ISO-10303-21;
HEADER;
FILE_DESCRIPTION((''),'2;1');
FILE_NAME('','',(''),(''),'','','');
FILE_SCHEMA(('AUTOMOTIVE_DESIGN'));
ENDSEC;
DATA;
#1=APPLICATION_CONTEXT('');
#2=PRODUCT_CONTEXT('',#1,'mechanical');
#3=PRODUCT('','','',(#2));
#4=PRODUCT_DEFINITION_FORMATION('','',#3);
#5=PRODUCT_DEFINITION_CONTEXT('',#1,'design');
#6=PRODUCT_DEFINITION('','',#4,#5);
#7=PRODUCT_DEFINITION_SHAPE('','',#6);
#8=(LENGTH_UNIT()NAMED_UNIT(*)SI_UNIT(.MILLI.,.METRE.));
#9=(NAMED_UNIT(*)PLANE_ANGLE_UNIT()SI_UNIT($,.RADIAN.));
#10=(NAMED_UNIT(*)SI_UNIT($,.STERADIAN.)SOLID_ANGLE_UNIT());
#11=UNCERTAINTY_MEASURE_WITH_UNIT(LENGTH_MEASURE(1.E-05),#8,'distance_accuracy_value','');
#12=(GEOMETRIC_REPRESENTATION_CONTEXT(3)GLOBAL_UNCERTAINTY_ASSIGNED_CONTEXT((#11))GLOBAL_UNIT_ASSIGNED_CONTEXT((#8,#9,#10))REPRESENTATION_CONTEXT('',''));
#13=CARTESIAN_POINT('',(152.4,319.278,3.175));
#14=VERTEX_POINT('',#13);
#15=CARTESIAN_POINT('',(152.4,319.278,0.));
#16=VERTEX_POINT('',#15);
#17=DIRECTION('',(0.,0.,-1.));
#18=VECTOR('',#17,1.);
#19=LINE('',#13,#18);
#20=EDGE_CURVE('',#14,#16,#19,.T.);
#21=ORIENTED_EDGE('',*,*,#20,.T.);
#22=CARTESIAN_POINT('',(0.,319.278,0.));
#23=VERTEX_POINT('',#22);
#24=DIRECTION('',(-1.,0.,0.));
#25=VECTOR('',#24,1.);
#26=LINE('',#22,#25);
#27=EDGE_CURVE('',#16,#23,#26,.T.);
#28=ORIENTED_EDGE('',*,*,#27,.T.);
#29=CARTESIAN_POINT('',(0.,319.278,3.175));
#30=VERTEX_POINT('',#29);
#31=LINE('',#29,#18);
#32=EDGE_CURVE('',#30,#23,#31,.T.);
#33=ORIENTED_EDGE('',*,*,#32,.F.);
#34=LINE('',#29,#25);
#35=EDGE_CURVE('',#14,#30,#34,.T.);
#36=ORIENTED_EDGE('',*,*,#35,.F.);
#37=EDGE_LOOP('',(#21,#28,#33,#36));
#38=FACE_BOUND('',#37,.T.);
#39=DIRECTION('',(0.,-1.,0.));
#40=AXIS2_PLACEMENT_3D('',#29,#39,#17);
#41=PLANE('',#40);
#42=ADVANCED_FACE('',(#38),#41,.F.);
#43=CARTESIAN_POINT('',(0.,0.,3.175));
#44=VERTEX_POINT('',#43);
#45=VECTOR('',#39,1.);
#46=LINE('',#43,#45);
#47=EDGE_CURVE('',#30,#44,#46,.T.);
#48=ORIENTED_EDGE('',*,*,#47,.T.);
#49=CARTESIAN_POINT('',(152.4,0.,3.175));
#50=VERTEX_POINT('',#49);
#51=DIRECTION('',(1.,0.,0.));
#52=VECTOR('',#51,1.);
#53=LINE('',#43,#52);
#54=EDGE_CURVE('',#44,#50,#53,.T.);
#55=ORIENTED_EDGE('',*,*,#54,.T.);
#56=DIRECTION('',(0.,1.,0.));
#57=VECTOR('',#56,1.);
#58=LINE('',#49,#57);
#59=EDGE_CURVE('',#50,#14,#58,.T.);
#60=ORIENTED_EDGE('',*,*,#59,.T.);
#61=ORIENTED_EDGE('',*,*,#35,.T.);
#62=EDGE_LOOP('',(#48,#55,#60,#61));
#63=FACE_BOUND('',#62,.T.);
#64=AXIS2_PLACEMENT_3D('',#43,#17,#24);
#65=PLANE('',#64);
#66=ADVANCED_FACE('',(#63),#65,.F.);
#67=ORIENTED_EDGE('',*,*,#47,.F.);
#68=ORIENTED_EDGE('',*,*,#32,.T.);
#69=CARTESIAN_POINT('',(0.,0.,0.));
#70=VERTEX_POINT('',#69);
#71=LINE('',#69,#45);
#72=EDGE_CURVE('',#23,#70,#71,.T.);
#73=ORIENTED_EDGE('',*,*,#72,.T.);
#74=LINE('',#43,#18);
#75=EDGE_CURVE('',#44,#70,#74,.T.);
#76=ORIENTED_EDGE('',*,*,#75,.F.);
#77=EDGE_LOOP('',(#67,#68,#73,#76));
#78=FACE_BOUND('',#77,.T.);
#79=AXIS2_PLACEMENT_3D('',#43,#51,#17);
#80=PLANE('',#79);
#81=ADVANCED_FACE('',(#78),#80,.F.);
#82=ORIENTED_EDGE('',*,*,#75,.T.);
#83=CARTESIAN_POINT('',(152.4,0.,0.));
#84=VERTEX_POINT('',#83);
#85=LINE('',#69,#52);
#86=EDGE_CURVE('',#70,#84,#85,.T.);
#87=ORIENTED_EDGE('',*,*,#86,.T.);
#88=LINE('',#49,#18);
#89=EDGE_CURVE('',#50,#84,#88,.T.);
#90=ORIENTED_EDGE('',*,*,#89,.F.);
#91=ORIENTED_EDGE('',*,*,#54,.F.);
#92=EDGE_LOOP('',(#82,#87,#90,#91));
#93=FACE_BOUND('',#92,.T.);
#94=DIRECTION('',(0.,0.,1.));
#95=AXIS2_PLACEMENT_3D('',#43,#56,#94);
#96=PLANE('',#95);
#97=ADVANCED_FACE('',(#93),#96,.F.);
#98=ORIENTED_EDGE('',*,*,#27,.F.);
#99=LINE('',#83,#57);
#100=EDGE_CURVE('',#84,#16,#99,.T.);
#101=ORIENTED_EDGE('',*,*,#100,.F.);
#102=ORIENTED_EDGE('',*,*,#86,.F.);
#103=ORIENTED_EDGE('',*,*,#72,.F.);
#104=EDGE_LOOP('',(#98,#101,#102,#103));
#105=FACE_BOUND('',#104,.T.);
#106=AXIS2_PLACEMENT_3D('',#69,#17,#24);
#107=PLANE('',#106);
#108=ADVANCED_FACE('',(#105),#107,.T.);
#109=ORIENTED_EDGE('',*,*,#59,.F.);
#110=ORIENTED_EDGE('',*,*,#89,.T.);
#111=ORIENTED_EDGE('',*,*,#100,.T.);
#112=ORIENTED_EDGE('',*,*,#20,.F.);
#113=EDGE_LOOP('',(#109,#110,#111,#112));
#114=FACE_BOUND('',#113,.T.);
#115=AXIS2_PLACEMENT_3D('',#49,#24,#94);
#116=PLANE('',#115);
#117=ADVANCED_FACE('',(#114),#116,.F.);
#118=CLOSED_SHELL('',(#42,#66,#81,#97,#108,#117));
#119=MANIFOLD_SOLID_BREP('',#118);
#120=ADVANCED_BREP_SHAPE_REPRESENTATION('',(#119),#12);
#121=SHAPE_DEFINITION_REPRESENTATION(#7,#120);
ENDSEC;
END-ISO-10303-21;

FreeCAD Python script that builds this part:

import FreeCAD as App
import Part
import Sketcher

V = App.Vector
Q = App.Units.Quantity

doc = App.newDocument("Part")
body = doc.addObject("PartDesign::Body", "Body")

# Sketch on XY plane
sketch1 = body.newObject("Sketcher::SketchObject", "Sketch")
sketch1.AttachmentSupport = (doc.getObject("XY_Plane"), [""])
sketch1.MapMode = "FlatFace"
sketch1.addGeometry([
    Part.LineSegment(V(0, 319, 0), V(0, 0, 0)),
    Part.LineSegment(V(0, 0, 0), V(152, 0, 0)),
    Part.LineSegment(V(152, 0, 0), V(152, 319, 0)),
    Part.LineSegment(V(152, 319, 0), V(0, 319, 0)),
], False)
sketch1.addConstraint([
    Sketcher.Constraint("Coincident", 0, 2, 1, 1),
    Sketcher.Constraint("Coincident", 1, 2, 2, 1),
    Sketcher.Constraint("Coincident", 2, 2, 3, 1),
    Sketcher.Constraint("Coincident", 3, 2, 0, 1),
    Sketcher.Constraint("Vertical", 0),
    Sketcher.Constraint("Horizontal", 1),
    Sketcher.Constraint("Vertical", 2),
    Sketcher.Constraint("Horizontal", 3),
    Sketcher.Constraint("Coincident", 0, 2, -1, 1),
    Sketcher.Constraint("DistanceX", 1, 1, 1, 2, Q("6 in")),
    Sketcher.Constraint("DistanceY", 0, 2, 0, 1, Q("12.57 in")),
])
pad1 = body.newObject("PartDesign::Pad", "Pad")
pad1.Profile = sketch1
pad1.Length = Q("0.125 in")

doc.recompute()
